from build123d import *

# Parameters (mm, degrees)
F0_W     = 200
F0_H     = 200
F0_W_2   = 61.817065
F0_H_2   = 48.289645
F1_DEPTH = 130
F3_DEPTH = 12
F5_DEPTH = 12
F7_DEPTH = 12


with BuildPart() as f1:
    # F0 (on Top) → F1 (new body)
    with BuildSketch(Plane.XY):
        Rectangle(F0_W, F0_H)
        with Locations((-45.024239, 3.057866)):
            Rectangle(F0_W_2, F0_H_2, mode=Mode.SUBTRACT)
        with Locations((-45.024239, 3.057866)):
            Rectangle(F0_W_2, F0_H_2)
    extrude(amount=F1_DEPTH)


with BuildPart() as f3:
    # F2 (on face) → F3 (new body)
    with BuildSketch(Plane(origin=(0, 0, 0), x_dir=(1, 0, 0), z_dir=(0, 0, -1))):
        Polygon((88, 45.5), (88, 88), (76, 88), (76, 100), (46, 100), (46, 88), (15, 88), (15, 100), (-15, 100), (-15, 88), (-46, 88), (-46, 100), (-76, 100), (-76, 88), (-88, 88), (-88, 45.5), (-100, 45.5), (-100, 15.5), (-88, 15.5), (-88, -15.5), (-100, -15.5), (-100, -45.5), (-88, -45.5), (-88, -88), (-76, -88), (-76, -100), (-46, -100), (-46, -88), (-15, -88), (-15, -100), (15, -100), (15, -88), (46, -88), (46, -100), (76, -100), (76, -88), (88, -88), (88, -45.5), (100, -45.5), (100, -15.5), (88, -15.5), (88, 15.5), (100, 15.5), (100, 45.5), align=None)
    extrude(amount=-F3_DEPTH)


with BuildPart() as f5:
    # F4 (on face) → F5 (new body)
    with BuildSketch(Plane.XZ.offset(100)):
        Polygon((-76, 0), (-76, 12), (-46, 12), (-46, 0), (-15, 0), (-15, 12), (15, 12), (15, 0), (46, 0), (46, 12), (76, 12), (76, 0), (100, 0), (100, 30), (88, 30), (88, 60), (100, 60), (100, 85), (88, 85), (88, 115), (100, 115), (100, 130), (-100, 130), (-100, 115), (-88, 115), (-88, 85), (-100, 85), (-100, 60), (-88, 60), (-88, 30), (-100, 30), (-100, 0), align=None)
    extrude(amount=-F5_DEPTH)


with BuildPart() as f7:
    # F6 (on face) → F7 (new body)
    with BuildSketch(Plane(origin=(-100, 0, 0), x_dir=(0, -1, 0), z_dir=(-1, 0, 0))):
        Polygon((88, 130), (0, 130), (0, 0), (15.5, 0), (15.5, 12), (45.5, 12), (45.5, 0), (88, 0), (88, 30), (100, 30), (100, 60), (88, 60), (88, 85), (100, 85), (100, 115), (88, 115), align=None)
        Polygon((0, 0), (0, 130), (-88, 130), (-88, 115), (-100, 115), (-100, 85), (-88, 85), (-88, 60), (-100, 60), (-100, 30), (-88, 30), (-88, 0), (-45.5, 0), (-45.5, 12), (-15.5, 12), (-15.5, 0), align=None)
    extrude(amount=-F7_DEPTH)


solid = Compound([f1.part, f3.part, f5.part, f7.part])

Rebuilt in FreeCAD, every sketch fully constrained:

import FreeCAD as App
import Part
import Sketcher

V = App.Vector

doc = App.newDocument("Part")
body = doc.addObject("PartDesign::Body", "Body")

# Sketch on XY plane
sketch1 = body.newObject("Sketcher::SketchObject", "Sketch")
sketch1.AttachmentSupport = (doc.getObject("XY_Plane"), [""])
sketch1.MapMode = "FlatFace"
sketch1.addGeometry([
    Part.LineSegment(V(-100, 100, 0), V(-100, -100, 0)),
    Part.LineSegment(V(-100, -100, 0), V(100, -100, 0)),
    Part.LineSegment(V(100, -100, 0), V(100, 100, 0)),
    Part.LineSegment(V(100, 100, 0), V(-100, 100, 0)),
], False)
sketch1.addConstraint([
    Sketcher.Constraint("Coincident", 0, 2, 1, 1),
    Sketcher.Constraint("Coincident", 1, 2, 2, 1),
    Sketcher.Constraint("Coincident", 2, 2, 3, 1),
    Sketcher.Constraint("Coincident", 3, 2, 0, 1),
    Sketcher.Constraint("Vertical", 0),
    Sketcher.Constraint("Horizontal", 1),
    Sketcher.Constraint("Vertical", 2),
    Sketcher.Constraint("Horizontal", 3),
    Sketcher.Constraint("Symmetric", 0, 2, 2, 2, -1, 1),
    Sketcher.Constraint("Equal", 3, 0),
    Sketcher.Constraint("DistanceX", 1, 1, 1, 2, 200.0),
])
pad1 = body.newObject("PartDesign::Pad", "Pad")
pad1.Profile = sketch1
pad1.Length = 130
body2 = doc.addObject("PartDesign::Body", "Body001")

# Sketch on XY plane
sketch2 = body2.newObject("Sketcher::SketchObject", "Sketch001")
sketch2.AttachmentSupport = (doc.getObject("XY_Plane001"), [""])
sketch2.MapMode = "FlatFace"
sketch2.addGeometry([
    Part.LineSegment(V(88, -45.5, 0), V(88, -88, 0)),  # 0
    Part.LineSegment(V(88, -88, 0), V(76, -88, 0)),  # 1
    Part.LineSegment(V(76, -88, 0), V(76, -100, 0)),  # 2
    Part.LineSegment(V(76, -100, 0), V(46, -100, 0)),  # 3
    Part.LineSegment(V(46, -100, 0), V(46, -88, 0)),  # 4
    Part.LineSegment(V(46, -88, 0), V(15, -88, 0)),  # 5
    Part.LineSegment(V(15, -88, 0), V(15, -100, 0)),  # 6
    Part.LineSegment(V(15, -100, 0), V(-15, -100, 0)),  # 7
    Part.LineSegment(V(-15, -100, 0), V(-15, -88, 0)),  # 8
    Part.LineSegment(V(-15, -88, 0), V(-46, -88, 0)),  # 9
    Part.LineSegment(V(-46, -88, 0), V(-46, -100, 0)),  # 10
    Part.LineSegment(V(-46, -100, 0), V(-76, -100, 0)),  # 11
    Part.LineSegment(V(-76, -100, 0), V(-76, -88, 0)),  # 12
    Part.LineSegment(V(-76, -88, 0), V(-88, -88, 0)),  # 13
    Part.LineSegment(V(-88, -88, 0), V(-88, -45.5, 0)),  # 14
    Part.LineSegment(V(-88, -45.5, 0), V(-100, -45.5, 0)),  # 15
    Part.LineSegment(V(-100, -45.5, 0), V(-100, -15.5, 0)),  # 16
    Part.LineSegment(V(-100, -15.5, 0), V(-88, -15.5, 0)),  # 17
    Part.LineSegment(V(-88, -15.5, 0), V(-88, 15.5, 0)),  # 18
    Part.LineSegment(V(-88, 15.5, 0), V(-100, 15.5, 0)),  # 19
    Part.LineSegment(V(-100, 15.5, 0), V(-100, 45.5, 0)),  # 20
    Part.LineSegment(V(-100, 45.5, 0), V(-88, 45.5, 0)),  # 21
    Part.LineSegment(V(-88, 45.5, 0), V(-88, 88, 0)),  # 22
    Part.LineSegment(V(-88, 88, 0), V(-76, 88, 0)),  # 23
    Part.LineSegment(V(-76, 88, 0), V(-76, 100, 0)),  # 24
    Part.LineSegment(V(-76, 100, 0), V(-46, 100, 0)),  # 25
    Part.LineSegment(V(-46, 100, 0), V(-46, 88, 0)),  # 26
    Part.LineSegment(V(-46, 88, 0), V(-15, 88, 0)),  # 27
    Part.LineSegment(V(-15, 88, 0), V(-15, 100, 0)),  # 28
    Part.LineSegment(V(-15, 100, 0), V(15, 100, 0)),  # 29
    Part.LineSegment(V(15, 100, 0), V(15, 88, 0)),  # 30
    Part.LineSegment(V(15, 88, 0), V(46, 88, 0)),  # 31
    Part.LineSegment(V(46, 88, 0), V(46, 100, 0)),  # 32
    Part.LineSegment(V(46, 100, 0), V(76, 100, 0)),  # 33
    Part.LineSegment(V(76, 100, 0), V(76, 88, 0)),  # 34
    Part.LineSegment(V(76, 88, 0), V(88, 88, 0)),  # 35
    Part.LineSegment(V(88, 88, 0), V(88, 45.5, 0)),  # 36
    Part.LineSegment(V(88, 45.5, 0), V(100, 45.5, 0)),  # 37
    Part.LineSegment(V(100, 45.5, 0), V(100, 15.5, 0)),  # 38
    Part.LineSegment(V(100, 15.5, 0), V(88, 15.5, 0)),  # 39
    Part.LineSegment(V(88, 15.5, 0), V(88, -15.5, 0)),  # 40
    Part.LineSegment(V(88, -15.5, 0), V(100, -15.5, 0)),  # 41
    Part.LineSegment(V(100, -15.5, 0), V(100, -45.5, 0)),  # 42
    Part.LineSegment(V(100, -45.5, 0), V(88, -45.5, 0)),  # 43
], False)
sketch2.addConstraint([
    Sketcher.Constraint("Coincident", 0, 2, 1, 1),
    Sketcher.Constraint("Coincident", 1, 2, 2, 1),
    Sketcher.Constraint("Coincident", 2, 2, 3, 1),
    Sketcher.Constraint("Coincident", 3, 2, 4, 1),
    Sketcher.Constraint("Coincident", 4, 2, 5, 1),
    Sketcher.Constraint("Coincident", 5, 2, 6, 1),
    Sketcher.Constraint("Coincident", 6, 2, 7, 1),
    Sketcher.Constraint("Coincident", 7, 2, 8, 1),
    Sketcher.Constraint("Coincident", 8, 2, 9, 1),
    Sketcher.Constraint("Coincident", 9, 2, 10, 1),
    Sketcher.Constraint("Coincident", 10, 2, 11, 1),
    Sketcher.Constraint("Coincident", 11, 2, 12, 1),
    Sketcher.Constraint("Coincident", 12, 2, 13, 1),
    Sketcher.Constraint("Coincident", 13, 2, 14, 1),
    Sketcher.Constraint("Coincident", 14, 2, 15, 1),
    Sketcher.Constraint("Coincident", 15, 2, 16, 1),
    Sketcher.Constraint("Coincident", 16, 2, 17, 1),
    Sketcher.Constraint("Coincident", 17, 2, 18, 1),
    Sketcher.Constraint("Coincident", 18, 2, 19, 1),
    Sketcher.Constraint("Coincident", 19, 2, 20, 1),
    Sketcher.Constraint("Coincident", 20, 2, 21, 1),
    Sketcher.Constraint("Coincident", 21, 2, 22, 1),
    Sketcher.Constraint("Coincident", 22, 2, 23, 1),
    Sketcher.Constraint("Coincident", 23, 2, 24, 1),
    Sketcher.Constraint("Coincident", 24, 2, 25, 1),
    Sketcher.Constraint("Coincident", 25, 2, 26, 1),
    Sketcher.Constraint("Coincident", 26, 2, 27, 1),
    Sketcher.Constraint("Coincident", 27, 2, 28, 1),
    Sketcher.Constraint("Coincident", 28, 2, 29, 1),
    Sketcher.Constraint("Coincident", 29, 2, 30, 1),
    Sketcher.Constraint("Coincident", 30, 2, 31, 1),
    Sketcher.Constraint("Coincident", 31, 2, 32, 1),
    Sketcher.Constraint("Coincident", 32, 2, 33, 1),
    Sketcher.Constraint("Coincident", 33, 2, 34, 1),
    Sketcher.Constraint("Coincident", 34, 2, 35, 1),
    Sketcher.Constraint("Coincident", 35, 2, 36, 1),
    Sketcher.Constraint("Coincident", 36, 2, 37, 1),
    Sketcher.Constraint("Coincident", 37, 2, 38, 1),
    Sketcher.Constraint("Coincident", 38, 2, 39, 1),
    Sketcher.Constraint("Coincident", 39, 2, 40, 1),
    Sketcher.Constraint("Coincident", 40, 2, 41, 1),
    Sketcher.Constraint("Coincident", 41, 2, 42, 1),
    Sketcher.Constraint("Coincident", 42, 2, 43, 1),
    Sketcher.Constraint("Coincident", 43, 2, 0, 1),
    Sketcher.Constraint("Vertical", 0),
    Sketcher.Constraint("Horizontal", 1),
    Sketcher.Constraint("Vertical", 2),
    Sketcher.Constraint("Horizontal", 3),
    Sketcher.Constraint("Vertical", 4),
    Sketcher.Constraint("Horizontal", 5),
    Sketcher.Constraint("Vertical", 6),
    Sketcher.Constraint("Horizontal", 7),
    Sketcher.Constraint("Vertical", 8),
    Sketcher.Constraint("Horizontal", 9),
    Sketcher.Constraint("Vertical", 10),
    Sketcher.Constraint("Horizontal", 11),
    Sketcher.Constraint("Vertical", 12),
    Sketcher.Constraint("Horizontal", 13),
    Sketcher.Constraint("Vertical", 14),
    Sketcher.Constraint("Horizontal", 15),
    Sketcher.Constraint("Vertical", 16),
    Sketcher.Constraint("Horizontal", 17),
    Sketcher.Constraint("Vertical", 18),
    Sketcher.Constraint("Horizontal", 19),
    Sketcher.Constraint("Vertical", 20),
    Sketcher.Constraint("Horizontal", 21),
    Sketcher.Constraint("Vertical", 22),
    Sketcher.Constraint("Horizontal", 23),
    Sketcher.Constraint("Vertical", 24),
    Sketcher.Constraint("Horizontal", 25),
    Sketcher.Constraint("Vertical", 26),
    Sketcher.Constraint("Horizontal", 27),
    Sketcher.Constraint("Vertical", 28),
    Sketcher.Constraint("Horizontal", 29),
    Sketcher.Constraint("Vertical", 30),
    Sketcher.Constraint("Horizontal", 31),
    Sketcher.Constraint("Vertical", 32),
    Sketcher.Constraint("Horizontal", 33),
    Sketcher.Constraint("Vertical", 34),
    Sketcher.Constraint("Horizontal", 35),
    Sketcher.Constraint("Vertical", 36),
    Sketcher.Constraint("Horizontal", 37),
    Sketcher.Constraint("Vertical", 38),
    Sketcher.Constraint("Horizontal", 39),
    Sketcher.Constraint("Vertical", 40),
    Sketcher.Constraint("Horizontal", 41),
    Sketcher.Constraint("Vertical", 42),
    Sketcher.Constraint("Horizontal", 43),
    Sketcher.Constraint("Symmetric", 0, 2, 22, 2, -1, 1),
    Sketcher.Constraint("Symmetric", 2, 2, 24, 2, -1, 1),
    Sketcher.Constraint("Symmetric", 4, 2, 26, 2, -1, 1),
    Sketcher.Constraint("Symmetric", 6, 2, 28, 2, -1, 1),
    Sketcher.Constraint("Symmetric", 8, 2, 30, 2, -1, 1),
    Sketcher.Constraint("Symmetric", 10, 2, 32, 2, -1, 1),
    Sketcher.Constraint("Symmetric", 12, 2, 34, 2, -1, 1),
    Sketcher.Constraint("Symmetric", 14, 2, 36, 2, -1, 1),
    Sketcher.Constraint("Symmetric", 16, 2, 38, 2, -1, 1),
    Sketcher.Constraint("Symmetric", 18, 2, 40, 2, -1, 1),
    Sketcher.Constraint("Symmetric", 20, 2, 42, 2, -1, 1),
    Sketcher.Constraint("Symmetric", 5, 2, 8, 2, -2),
    Sketcher.Constraint("Symmetric", 3, 2, 10, 2, -2),
    Sketcher.Constraint("Symmetric", 1, 2, 12, 2, -2),
    Sketcher.Constraint("Symmetric", 21, 2, 36, 2, -2),
    Sketcher.Constraint("Symmetric", 19, 2, 38, 2, -2),
    Sketcher.Constraint("Horizontal", 1, 2, 4, 2),
    Sketcher.Constraint("Horizontal", 3, 2, 6, 2),
    Sketcher.Constraint("Vertical", 14, 2, 17, 2),
    Sketcher.Constraint("Equal", 3, 7),
    Sketcher.Constraint("Equal", 13, 15),
    Sketcher.Constraint("Equal", 43, 2),
    Sketcher.Constraint("Equal", 33, 16),
    Sketcher.Constraint("Equal", 31, 18),
    Sketcher.Constraint("DistanceX", 1, 2, 1, 1, 12.0),
    Sketcher.Constraint("DistanceX", 3, 2, 3, 1, 30.0),
    Sketcher.Constraint("DistanceX", 5, 2, 5, 1, 31.0),
    Sketcher.Constraint("DistanceY", 0, 2, 0, 1, 42.5),
])
pad2 = body2.newObject("PartDesign::Pad", "Pad001")
pad2.Profile = sketch2
pad2.Length = 12
body3 = doc.addObject("PartDesign::Body", "Body002")

# Sketch on XZ plane
sketch3 = body3.newObject("Sketcher::SketchObject", "Sketch002")
sketch3.AttachmentSupport = (doc.getObject("XZ_Plane002"), [""])
sketch3.MapMode = "FlatFace"
sketch3.AttachmentOffset = App.Placement(V(0, 0, 100), App.Rotation())
sketch3.addGeometry([
    Part.LineSegment(V(-76, 0, 0), V(-76, 12, 0)),  # 0
    Part.LineSegment(V(-76, 12, 0), V(-46, 12, 0)),  # 1
    Part.LineSegment(V(-46, 12, 0), V(-46, 0, 0)),  # 2
    Part.LineSegment(V(-46, 0, 0), V(-15, 0, 0)),  # 3
    Part.LineSegment(V(-15, 0, 0), V(-15, 12, 0)),  # 4
    Part.LineSegment(V(-15, 12, 0), V(15, 12, 0)),  # 5
    Part.LineSegment(V(15, 12, 0), V(15, 0, 0)),  # 6
    Part.LineSegment(V(15, 0, 0), V(46, 0, 0)),  # 7
    Part.LineSegment(V(46, 0, 0), V(46, 12, 0)),  # 8
    Part.LineSegment(V(46, 12, 0), V(76, 12, 0)),  # 9
    Part.LineSegment(V(76, 12, 0), V(76, 0, 0)),  # 10
    Part.LineSegment(V(76, 0, 0), V(100, 0, 0)),  # 11
    Part.LineSegment(V(100, 0, 0), V(100, 30, 0)),  # 12
    Part.LineSegment(V(100, 30, 0), V(88, 30, 0)),  # 13
    Part.LineSegment(V(88, 30, 0), V(88, 60, 0)),  # 14
    Part.LineSegment(V(88, 60, 0), V(100, 60, 0)),  # 15
    Part.LineSegment(V(100, 60, 0), V(100, 85, 0)),  # 16
    Part.LineSegment(V(100, 85, 0), V(88, 85, 0)),  # 17
    Part.LineSegment(V(88, 85, 0), V(88, 115, 0)),  # 18
    Part.LineSegment(V(88, 115, 0), V(100, 115, 0)),  # 19
    Part.LineSegment(V(100, 115, 0), V(100, 130, 0)),  # 20
    Part.LineSegment(V(100, 130, 0), V(-100, 130, 0)),  # 21
    Part.LineSegment(V(-100, 130, 0), V(-100, 115, 0)),  # 22
    Part.LineSegment(V(-100, 115, 0), V(-88, 115, 0)),  # 23
    Part.LineSegment(V(-88, 115, 0), V(-88, 85, 0)),  # 24
    Part.LineSegment(V(-88, 85, 0), V(-100, 85, 0)),  # 25
    Part.LineSegment(V(-100, 85, 0), V(-100, 60, 0)),  # 26
    Part.LineSegment(V(-100, 60, 0), V(-88, 60, 0)),  # 27
    Part.LineSegment(V(-88, 60, 0), V(-88, 30, 0)),  # 28
    Part.LineSegment(V(-88, 30, 0), V(-100, 30, 0)),  # 29
    Part.LineSegment(V(-100, 30, 0), V(-100, 0, 0)),  # 30
    Part.LineSegment(V(-100, 0, 0), V(-76, 0, 0)),  # 31
], False)
sketch3.addConstraint([
    Sketcher.Constraint("Coincident", 0, 2, 1, 1),
    Sketcher.Constraint("Coincident", 1, 2, 2, 1),
    Sketcher.Constraint("Coincident", 2, 2, 3, 1),
    Sketcher.Constraint("Coincident", 3, 2, 4, 1),
    Sketcher.Constraint("Coincident", 4, 2, 5, 1),
    Sketcher.Constraint("Coincident", 5, 2, 6, 1),
    Sketcher.Constraint("Coincident", 6, 2, 7, 1),
    Sketcher.Constraint("Coincident", 7, 2, 8, 1),
    Sketcher.Constraint("Coincident", 8, 2, 9, 1),
    Sketcher.Constraint("Coincident", 9, 2, 10, 1),
    Sketcher.Constraint("Coincident", 10, 2, 11, 1),
    Sketcher.Constraint("Coincident", 11, 2, 12, 1),
    Sketcher.Constraint("Coincident", 12, 2, 13, 1),
    Sketcher.Constraint("Coincident", 13, 2, 14, 1),
    Sketcher.Constraint("Coincident", 14, 2, 15, 1),
    Sketcher.Constraint("Coincident", 15, 2, 16, 1),
    Sketcher.Constraint("Coincident", 16, 2, 17, 1),
    Sketcher.Constraint("Coincident", 17, 2, 18, 1),
    Sketcher.Constraint("Coincident", 18, 2, 19, 1),
    Sketcher.Constraint("Coincident", 19, 2, 20, 1),
    Sketcher.Constraint("Coincident", 20, 2, 21, 1),
    Sketcher.Constraint("Coincident", 21, 2, 22, 1),
    Sketcher.Constraint("Coincident", 22, 2, 23, 1),
    Sketcher.Constraint("Coincident", 23, 2, 24, 1),
    Sketcher.Constraint("Coincident", 24, 2, 25, 1),
    Sketcher.Constraint("Coincident", 25, 2, 26, 1),
    Sketcher.Constraint("Coincident", 26, 2, 27, 1),
    Sketcher.Constraint("Coincident", 27, 2, 28, 1),
    Sketcher.Constraint("Coincident", 28, 2, 29, 1),
    Sketcher.Constraint("Coincident", 29, 2, 30, 1),
    Sketcher.Constraint("Coincident", 30, 2, 31, 1),
    Sketcher.Constraint("Coincident", 31, 2, 0, 1),
    Sketcher.Constraint("Vertical", 0),
    Sketcher.Constraint("Horizontal", 1),
    Sketcher.Constraint("Vertical", 2),
    Sketcher.Constraint("Horizontal", 3),
    Sketcher.Constraint("Vertical", 4),
    Sketcher.Constraint("Horizontal", 5),
    Sketcher.Constraint("Vertical", 6),
    Sketcher.Constraint("Horizontal", 7),
    Sketcher.Constraint("Vertical", 8),
    Sketcher.Constraint("Horizontal", 9),
    Sketcher.Constraint("Vertical", 10),
    Sketcher.Constraint("Horizontal", 11),
    Sketcher.Constraint("Vertical", 12),
    Sketcher.Constraint("Horizontal", 13),
    Sketcher.Constraint("Vertical", 14),
    Sketcher.Constraint("Horizontal", 15),
    Sketcher.Constraint("Vertical", 16),
    Sketcher.Constraint("Horizontal", 17),
    Sketcher.Constraint("Vertical", 18),
    Sketcher.Constraint("Horizontal", 19),
    Sketcher.Constraint("Vertical", 20),
    Sketcher.Constraint("Horizontal", 21),
    Sketcher.Constraint("Vertical", 22),
    Sketcher.Constraint("Horizontal", 23),
    Sketcher.Constraint("Vertical", 24),
    Sketcher.Constraint("Horizontal", 25),
    Sketcher.Constraint("Vertical", 26),
    Sketcher.Constraint("Horizontal", 27),
    Sketcher.Constraint("Vertical", 28),
    Sketcher.Constraint("Horizontal", 29),
    Sketcher.Constraint("Vertical", 30),
    Sketcher.Constraint("Horizontal", 31),
    Sketcher.Constraint("Symmetric", 3, 2, 6, 2, -1, 1),
    Sketcher.Constraint("Symmetric", 11, 2, 30, 2, -1, 1),
    Sketcher.Constraint("Symmetric", 2, 2, 7, 2, -2),
    Sketcher.Constraint("Symmetric", 0, 2, 9, 2, -2),
    Sketcher.Constraint("Symmetric", 19, 2, 22, 2, -2),
    Sketcher.Constraint("Symmetric", 17, 2, 24, 2, -2),
    Sketcher.Constraint("Symmetric", 15, 2, 26, 2, -2),
    Sketcher.Constraint("Symmetric", 13, 2, 28, 2, -2),
    Sketcher.Constraint("PointOnObject", 10, 2, -1),
    Sketcher.Constraint("Horizontal", 1, 2, 4, 2),
    Sketcher.Constraint("Vertical", 12, 2, 15, 2),
    Sketcher.Constraint("Vertical", 14, 2, 17, 2),
    Sketcher.Constraint("Vertical", 16, 2, 19, 2),
    Sketcher.Constraint("Equal", 1, 5),
    Sketcher.Constraint("Equal", 29, 0),
    Sketcher.Constraint("Equal", 9, 12),
    Sketcher.Constraint("Equal", 12, 14),
    Sketcher.Constraint("Equal", 14, 18),
    Sketcher.Constraint("DistanceX", 1, 1, 1, 2, 30.0),
    Sketcher.Constraint("DistanceX", 3, 1, 3, 2, 31.0),
    Sketcher.Constraint("DistanceX", 11, 1, 11, 2, 24.0),
    Sketcher.Constraint("DistanceX", 13, 2, 13, 1, 12.0),
    Sketcher.Constraint("DistanceY", 16, 1, 16, 2, 25.0),
    Sketcher.Constraint("DistanceY", 20, 1, 20, 2, 15.0),
])
pad3 = body3.newObject("PartDesign::Pad", "Pad002")
pad3.Profile = sketch3
pad3.Length = 12
pad3.Reversed = True
body4 = doc.addObject("PartDesign::Body", "Body003")

# Sketch on YZ plane
sketch4 = body4.newObject("Sketcher::SketchObject", "Sketch003")
sketch4.AttachmentSupport = (doc.getObject("YZ_Plane003"), [""])
sketch4.MapMode = "FlatFace"
sketch4.AttachmentOffset = App.Placement(V(0, 0, -100), App.Rotation())
sketch4.addGeometry([
    Part.LineSegment(V(-88, 130, 0), V(88, 130, 0)),  # 0
    Part.LineSegment(V(88, 130, 0), V(88, 115, 0)),  # 1
    Part.LineSegment(V(88, 115, 0), V(100, 115, 0)),  # 2
    Part.LineSegment(V(100, 115, 0), V(100, 85, 0)),  # 3
    Part.LineSegment(V(100, 85, 0), V(88, 85, 0)),  # 4
    Part.LineSegment(V(88, 85, 0), V(88, 60, 0)),  # 5
    Part.LineSegment(V(88, 60, 0), V(100, 60, 0)),  # 6
    Part.LineSegment(V(100, 60, 0), V(100, 30, 0)),  # 7
    Part.LineSegment(V(100, 30, 0), V(88, 30, 0)),  # 8
    Part.LineSegment(V(88, 30, 0), V(88, 0, 0)),  # 9
    Part.LineSegment(V(88, 0, 0), V(45.5, 0, 0)),  # 10
    Part.LineSegment(V(45.5, 0, 0), V(45.5, 12, 0)),  # 11
    Part.LineSegment(V(45.5, 12, 0), V(15.5, 12, 0)),  # 12
    Part.LineSegment(V(15.5, 12, 0), V(15.5, 0, 0)),  # 13
    Part.LineSegment(V(15.5, 0, 0), V(-15.5, 0, 0)),  # 14
    Part.LineSegment(V(-15.5, 0, 0), V(-15.5, 12, 0)),  # 15
    Part.LineSegment(V(-15.5, 12, 0), V(-45.5, 12, 0)),  # 16
    Part.LineSegment(V(-45.5, 12, 0), V(-45.5, 0, 0)),  # 17
    Part.LineSegment(V(-45.5, 0, 0), V(-88, 0, 0)),  # 18
    Part.LineSegment(V(-88, 0, 0), V(-88, 30, 0)),  # 19
    Part.LineSegment(V(-88, 30, 0), V(-100, 30, 0)),  # 20
    Part.LineSegment(V(-100, 30, 0), V(-100, 60, 0)),  # 21
    Part.LineSegment(V(-100, 60, 0), V(-88, 60, 0)),  # 22
    Part.LineSegment(V(-88, 60, 0), V(-88, 85, 0)),  # 23
    Part.LineSegment(V(-88, 85, 0), V(-100, 85, 0)),  # 24
    Part.LineSegment(V(-100, 85, 0), V(-100, 115, 0)),  # 25
    Part.LineSegment(V(-100, 115, 0), V(-88, 115, 0)),  # 26
    Part.LineSegment(V(-88, 115, 0), V(-88, 130, 0)),  # 27
], False)
sketch4.addConstraint([
    Sketcher.Constraint("Coincident", 0, 2, 1, 1),
    Sketcher.Constraint("Coincident", 1, 2, 2, 1),
    Sketcher.Constraint("Coincident", 2, 2, 3, 1),
    Sketcher.Constraint("Coincident", 3, 2, 4, 1),
    Sketcher.Constraint("Coincident", 4, 2, 5, 1),
    Sketcher.Constraint("Coincident", 5, 2, 6, 1),
    Sketcher.Constraint("Coincident", 6, 2, 7, 1),
    Sketcher.Constraint("Coincident", 7, 2, 8, 1),
    Sketcher.Constraint("Coincident", 8, 2, 9, 1),
    Sketcher.Constraint("Coincident", 9, 2, 10, 1),
    Sketcher.Constraint("Coincident", 10, 2, 11, 1),
    Sketcher.Constraint("Coincident", 11, 2, 12, 1),
    Sketcher.Constraint("Coincident", 12, 2, 13, 1),
    Sketcher.Constraint("Coincident", 13, 2, 14, 1),
    Sketcher.Constraint("Coincident", 14, 2, 15, 1),
    Sketcher.Constraint("Coincident", 15, 2, 16, 1),
    Sketcher.Constraint("Coincident", 16, 2, 17, 1),
    Sketcher.Constraint("Coincident", 17, 2, 18, 1),
    Sketcher.Constraint("Coincident", 18, 2, 19, 1),
    Sketcher.Constraint("Coincident", 19, 2, 20, 1),
    Sketcher.Constraint("Coincident", 20, 2, 21, 1),
    Sketcher.Constraint("Coincident", 21, 2, 22, 1),
    Sketcher.Constraint("Coincident", 22, 2, 23, 1),
    Sketcher.Constraint("Coincident", 23, 2, 24, 1),
    Sketcher.Constraint("Coincident", 24, 2, 25, 1),
    Sketcher.Constraint("Coincident", 25, 2, 26, 1),
    Sketcher.Constraint("Coincident", 26, 2, 27, 1),
    Sketcher.Constraint("Coincident", 27, 2, 0, 1),
    Sketcher.Constraint("Horizontal", 0),
    Sketcher.Constraint("Vertical", 1),
    Sketcher.Constraint("Horizontal", 2),
    Sketcher.Constraint("Vertical", 3),
    Sketcher.Constraint("Horizontal", 4),
    Sketcher.Constraint("Vertical", 5),
    Sketcher.Constraint("Horizontal", 6),
    Sketcher.Constraint("Vertical", 7),
    Sketcher.Constraint("Horizontal", 8),
    Sketcher.Constraint("Vertical", 9),
    Sketcher.Constraint("Horizontal", 10),
    Sketcher.Constraint("Vertical", 11),
    Sketcher.Constraint("Horizontal", 12),
    Sketcher.Constraint("Vertical", 13),
    Sketcher.Constraint("Horizontal", 14),
    Sketcher.Constraint("Vertical", 15),
    Sketcher.Constraint("Horizontal", 16),
    Sketcher.Constraint("Vertical", 17),
    Sketcher.Constraint("Horizontal", 18),
    Sketcher.Constraint("Vertical", 19),
    Sketcher.Constraint("Horizontal", 20),
    Sketcher.Constraint("Vertical", 21),
    Sketcher.Constraint("Horizontal", 22),
    Sketcher.Constraint("Vertical", 23),
    Sketcher.Constraint("Horizontal", 24),
    Sketcher.Constraint("Vertical", 25),
    Sketcher.Constraint("Horizontal", 26),
    Sketcher.Constraint("Vertical", 27),
    Sketcher.Constraint("Symmetric", 13, 2, 14, 2, -1, 1),
    Sketcher.Constraint("Symmetric", 10, 2, 17, 2, -1, 1),
    Sketcher.Constraint("Symmetric", 9, 2, 18, 2, -2),
    Sketcher.Constraint("Symmetric", 7, 2, 20, 2, -2),
    Sketcher.Constraint("Symmetric", 5, 2, 22, 2, -2),
    Sketcher.Constraint("Symmetric", 3, 2, 24, 2, -2),
    Sketcher.Constraint("Symmetric", 1, 2, 26, 2, -2),
    Sketcher.Constraint("Horizontal", 12, 2, 15, 2),
    Sketcher.Constraint("Vertical", 1, 2, 4, 2),
    Sketcher.Constraint("Vertical", 3, 2, 6, 2),
    Sketcher.Constraint("Vertical", 5, 2, 8, 2),
    Sketcher.Constraint("Equal", 16, 3),
    Sketcher.Constraint("Equal", 3, 7),
    Sketcher.Constraint("Equal", 7, 9),
    Sketcher.Constraint("Equal", 26, 11),
    Sketcher.Constraint("DistanceX", 0, 1, 0, 2, 176.0),
    Sketcher.Constraint("DistanceX", 2, 1, 2, 2, 12.0),
    Sketcher.Constraint("DistanceX", 12, 2, 12, 1, 30.0),
    Sketcher.Constraint("DistanceX", 14, 2, 14, 1, 31.0),
    Sketcher.Constraint("DistanceY", 1, 2, 1, 1, 15.0),
    Sketcher.Constraint("DistanceY", 5, 2, 5, 1, 25.0),
])
pad4 = body4.newObject("PartDesign::Pad", "Pad003")
pad4.Profile = sketch4
pad4.Length = 12

doc.recompute()
